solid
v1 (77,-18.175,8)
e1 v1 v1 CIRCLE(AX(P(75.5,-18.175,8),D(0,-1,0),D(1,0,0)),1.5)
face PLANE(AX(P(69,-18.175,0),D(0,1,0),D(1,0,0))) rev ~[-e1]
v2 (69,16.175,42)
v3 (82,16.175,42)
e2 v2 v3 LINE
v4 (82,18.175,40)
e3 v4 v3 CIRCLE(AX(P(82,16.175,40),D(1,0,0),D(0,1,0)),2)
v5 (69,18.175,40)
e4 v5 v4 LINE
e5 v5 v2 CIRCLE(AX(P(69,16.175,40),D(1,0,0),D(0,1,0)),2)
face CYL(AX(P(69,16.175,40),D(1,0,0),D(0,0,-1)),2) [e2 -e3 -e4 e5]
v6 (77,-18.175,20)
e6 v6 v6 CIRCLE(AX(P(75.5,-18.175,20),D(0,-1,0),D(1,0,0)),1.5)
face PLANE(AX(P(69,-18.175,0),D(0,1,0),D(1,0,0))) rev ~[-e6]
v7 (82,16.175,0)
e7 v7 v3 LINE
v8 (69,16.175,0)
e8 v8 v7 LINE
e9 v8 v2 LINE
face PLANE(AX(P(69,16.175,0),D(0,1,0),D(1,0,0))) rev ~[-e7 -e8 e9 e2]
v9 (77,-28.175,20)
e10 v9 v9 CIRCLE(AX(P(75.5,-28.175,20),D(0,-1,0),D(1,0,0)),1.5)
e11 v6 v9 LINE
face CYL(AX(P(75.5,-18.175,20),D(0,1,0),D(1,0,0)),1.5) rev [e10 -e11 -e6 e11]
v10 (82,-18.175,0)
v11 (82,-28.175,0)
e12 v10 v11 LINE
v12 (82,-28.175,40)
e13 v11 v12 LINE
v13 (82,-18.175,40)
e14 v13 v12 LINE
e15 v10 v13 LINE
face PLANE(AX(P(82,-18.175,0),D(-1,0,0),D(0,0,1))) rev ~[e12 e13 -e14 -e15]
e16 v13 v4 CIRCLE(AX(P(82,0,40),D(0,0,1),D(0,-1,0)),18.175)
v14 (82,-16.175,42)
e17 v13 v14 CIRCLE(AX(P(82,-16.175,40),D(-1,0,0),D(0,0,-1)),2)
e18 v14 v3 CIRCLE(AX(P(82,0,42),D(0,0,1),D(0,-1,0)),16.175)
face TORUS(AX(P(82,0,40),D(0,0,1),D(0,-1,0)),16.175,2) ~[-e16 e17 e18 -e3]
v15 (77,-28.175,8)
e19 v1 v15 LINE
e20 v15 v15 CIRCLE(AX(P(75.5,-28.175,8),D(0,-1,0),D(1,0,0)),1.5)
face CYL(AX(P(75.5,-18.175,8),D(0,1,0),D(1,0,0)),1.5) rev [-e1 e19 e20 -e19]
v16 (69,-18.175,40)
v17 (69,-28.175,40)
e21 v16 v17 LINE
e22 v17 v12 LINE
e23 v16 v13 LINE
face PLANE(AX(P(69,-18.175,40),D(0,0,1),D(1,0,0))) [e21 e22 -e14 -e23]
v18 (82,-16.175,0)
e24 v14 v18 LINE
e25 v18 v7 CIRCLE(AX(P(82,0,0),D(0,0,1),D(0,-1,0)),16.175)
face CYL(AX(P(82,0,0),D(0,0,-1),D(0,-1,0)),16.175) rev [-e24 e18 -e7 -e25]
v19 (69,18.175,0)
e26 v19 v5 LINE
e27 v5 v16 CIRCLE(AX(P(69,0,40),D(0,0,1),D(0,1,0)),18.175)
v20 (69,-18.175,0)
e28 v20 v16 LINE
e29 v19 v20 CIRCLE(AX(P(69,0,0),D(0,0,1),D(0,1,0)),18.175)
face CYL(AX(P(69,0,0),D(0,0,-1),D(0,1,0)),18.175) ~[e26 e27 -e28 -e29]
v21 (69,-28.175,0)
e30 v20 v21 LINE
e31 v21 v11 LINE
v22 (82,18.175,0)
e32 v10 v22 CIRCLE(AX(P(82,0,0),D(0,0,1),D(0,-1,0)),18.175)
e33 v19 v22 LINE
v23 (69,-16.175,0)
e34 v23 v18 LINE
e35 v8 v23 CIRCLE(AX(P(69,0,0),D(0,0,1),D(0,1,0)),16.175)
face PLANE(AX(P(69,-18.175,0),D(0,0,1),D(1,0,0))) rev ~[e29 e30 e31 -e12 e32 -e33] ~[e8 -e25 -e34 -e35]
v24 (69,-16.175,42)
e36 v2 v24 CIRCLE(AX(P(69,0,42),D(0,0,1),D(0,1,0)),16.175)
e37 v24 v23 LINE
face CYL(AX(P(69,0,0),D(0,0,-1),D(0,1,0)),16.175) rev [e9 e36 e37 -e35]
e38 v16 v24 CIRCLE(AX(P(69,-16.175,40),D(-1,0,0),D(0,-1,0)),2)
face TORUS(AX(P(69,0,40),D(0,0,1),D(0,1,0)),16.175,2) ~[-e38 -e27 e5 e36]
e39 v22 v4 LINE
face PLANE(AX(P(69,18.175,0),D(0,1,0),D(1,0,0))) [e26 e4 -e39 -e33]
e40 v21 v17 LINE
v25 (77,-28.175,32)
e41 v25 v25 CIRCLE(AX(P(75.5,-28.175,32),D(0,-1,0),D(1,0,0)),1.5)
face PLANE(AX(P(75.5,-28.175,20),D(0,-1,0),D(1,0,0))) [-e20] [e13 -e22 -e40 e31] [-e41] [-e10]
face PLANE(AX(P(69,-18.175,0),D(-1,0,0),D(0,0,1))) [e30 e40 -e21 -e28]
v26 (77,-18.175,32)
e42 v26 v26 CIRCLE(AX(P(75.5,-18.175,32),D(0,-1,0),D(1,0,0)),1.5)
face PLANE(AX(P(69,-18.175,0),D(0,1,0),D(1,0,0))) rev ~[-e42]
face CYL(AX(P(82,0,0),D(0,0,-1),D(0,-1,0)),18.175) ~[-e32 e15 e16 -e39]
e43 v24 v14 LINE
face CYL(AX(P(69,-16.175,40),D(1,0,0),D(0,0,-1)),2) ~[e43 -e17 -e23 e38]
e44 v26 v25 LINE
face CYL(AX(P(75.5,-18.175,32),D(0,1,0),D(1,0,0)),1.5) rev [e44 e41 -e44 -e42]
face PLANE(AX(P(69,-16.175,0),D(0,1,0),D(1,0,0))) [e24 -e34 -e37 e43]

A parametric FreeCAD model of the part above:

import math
import FreeCAD as App
import Part
import Sketcher
from FreeCAD import Vector


def faces_at(feature, points):
    """Names of the faces that lie closest to the given points."""
    faces = feature.Shape.Faces
    near = lambda p: min(range(len(faces)), key=lambda i: faces[i].distToShape(Part.Vertex(*p))[0])
    return sorted({f"Face{near(p) + 1}" for p in points})


def add_polygon(sketch, points):
    """Adds a closed chain of lines whose ends are joined by coincident constraints."""
    first, n = sketch.GeometryCount, len(points)
    for a, b in zip(points, points[1:] + points[:1]):
        sketch.addGeometry(Part.LineSegment(App.Vector(*a, 0), App.Vector(*b, 0)), False)
    for i in range(n):
        sketch.addConstraint(Sketcher.Constraint("Coincident", first + i, 2, first + (i + 1) % n, 1))

doc = App.newDocument("Part")
params = doc.addObject("Spreadsheet::Sheet", "Params")
for row, (alias, value) in enumerate([
    ("sketch1_width", "13 mm"),
    ("pad1_length", "40 mm"),
    ("thickness_wall", "2 mm"),
    ("sketch2_width", "13 mm"),
    ("pocket1_length", "5 mm"),
    ("sketch3_diameter", "3 mm"),
    ("sketch3_width", "13 mm"),
    ("sketch3_height", "40 mm"),
    ("pad2_length", "10 mm"),
], start=1):
    params.set(f"A{row}", alias)
    params.set(f"B{row}", "=" + value)
    params.setAlias(f"B{row}", alias)

body = doc.addObject("PartDesign::Body", "Body")

# Sketch on XY plane
sketch1 = body.newObject("Sketcher::SketchObject", "Sketch")
sketch1.AttachmentSupport = (doc.getObject("XY_Plane"), [""])
sketch1.MapMode = "FlatFace"
sketch1.addGeometry([
    Part.ArcOfCircle(Part.Circle(Vector(0, 0, 0), Vector(0, 0, 1), 16.175), math.radians(90), math.radians(270)),
    Part.LineSegment(Vector(0, -16.175, 0), Vector(13, -16.175, 0)),
    Part.ArcOfCircle(Part.Circle(Vector(13, 0, 0), Vector(0, 0, 1), 16.175), math.radians(-90), math.radians(90)),
    Part.LineSegment(Vector(13, 16.175, 0), Vector(0, 16.175, 0)),
], False)
sketch1.addConstraint([
    Sketcher.Constraint("Tangent", 0, 2, 1, 1),
    Sketcher.Constraint("Tangent", 1, 2, 2, 1),
    Sketcher.Constraint("Tangent", 2, 2, 3, 1),
    Sketcher.Constraint("Tangent", 3, 2, 0, 1),
    Sketcher.Constraint("Horizontal", 1),
    Sketcher.Constraint("Horizontal", 3),
    Sketcher.Constraint("Coincident", 0, 3, -1, 1),
    Sketcher.Constraint("DistanceX", 1, 1, 1, 2, 13.0),
    Sketcher.Constraint("Radius", 0, 16.175),
])
sketch1.setExpression("Constraints[7]", "Params.sketch1_width")
pad1 = body.newObject("PartDesign::Pad", "Pad")
pad1.Profile = sketch1
pad1.setExpression("Length", "Params.pad1_length")
doc.recompute()

thickness = body.newObject("PartDesign::Thickness", "Thickness")
thickness.Base = (pad1, faces_at(pad1, [(6.5, 0, 0)]))
thickness.setExpression("Value", "Params.thickness_wall")
thickness.Reversed = False
thickness.Join = "Arc"

# Sketch on XY plane
sketch2 = body.newObject("Sketcher::SketchObject", "Sketch001")
sketch2.AttachmentSupport = (doc.getObject("XY_Plane"), [""])
sketch2.MapMode = "FlatFace"
sketch2.AttachmentOffset = App.Placement(Vector(0, 0, 40), App.Rotation())
sketch2.addGeometry([
    Part.ArcOfCircle(Part.Circle(Vector(0, 0, 0), Vector(0, 0, 1), 16.175), math.radians(90), math.radians(270)),
    Part.LineSegment(Vector(0, 16.175, 0), Vector(13, 16.175, 0)),
    Part.ArcOfCircle(Part.Circle(Vector(13, 0, 0), Vector(0, 0, 1), 16.175), math.radians(-90), math.radians(90)),
    Part.LineSegment(Vector(13, -16.175, 0), Vector(0, -16.175, 0)),
], False)
sketch2.addConstraint([
    Sketcher.Constraint("Tangent", 0, 1, 1, 1),
    Sketcher.Constraint("Tangent", 1, 2, 2, 2),
    Sketcher.Constraint("Tangent", 2, 1, 3, 1),
    Sketcher.Constraint("Tangent", 3, 2, 0, 2),
    Sketcher.Constraint("Horizontal", 1),
    Sketcher.Constraint("Horizontal", 3),
    Sketcher.Constraint("Coincident", 0, 3, -1, 1),
    Sketcher.Constraint("DistanceX", 1, 1, 1, 2, 13.0),
    Sketcher.Constraint("Radius", 0, 16.175),
])
sketch2.setExpression("Constraints[7]", "Params.sketch2_width")
pocket1 = body.newObject("PartDesign::Pocket", "Pocket")
pocket1.Profile = sketch2
pocket1.setExpression("Length", "Params.pocket1_length")
pocket1.Reversed = True

# Sketch on XZ plane
sketch3 = body.newObject("Sketcher::SketchObject", "Sketch002")
sketch3.AttachmentSupport = (doc.getObject("XZ_Plane"), [""])
sketch3.MapMode = "FlatFace"
sketch3.AttachmentOffset = App.Placement(Vector(0, 0, 18.175), App.Rotation())
add_polygon(sketch3, [(0, 40), (0, 0), (13, 0), (13, 40)])  # lines 0-3
sketch3.addGeometry(Part.Circle(Vector(6.5, 8, 0), Vector(0, 0, 1), 1.5), False)  # 4
sketch3.addGeometry(Part.Circle(Vector(6.5, 20, 0), Vector(0, 0, 1), 1.5), False)  # 5
sketch3.addGeometry(Part.Circle(Vector(6.5, 32, 0), Vector(0, 0, 1), 1.5), False)  # 6
sketch3.addConstraint([
    Sketcher.Constraint("Vertical", 0),
    Sketcher.Constraint("Horizontal", 1),
    Sketcher.Constraint("Vertical", 2),
    Sketcher.Constraint("Horizontal", 3),
    Sketcher.Constraint("Coincident", 0, 2, -1, 1),
    Sketcher.Constraint("Equal", 4, 5),
    Sketcher.Constraint("Equal", 5, 6),
    Sketcher.Constraint("Vertical", 4, 3, 5, 3),
    Sketcher.Constraint("Vertical", 5, 3, 6, 3),
    Sketcher.Constraint("Diameter", 4, 3.0),
    Sketcher.Constraint("DistanceX", 1, 1, 1, 2, 13.0),
    Sketcher.Constraint("DistanceY", 0, 2, 0, 1, 40.0),
    Sketcher.Constraint("DistanceY", -1, 1, 4, 3, 8.0),
    Sketcher.Constraint("DistanceY", -1, 1, 5, 3, 20.0),
    Sketcher.Constraint("DistanceY", -1, 1, 6, 3, 32.0),
    Sketcher.Constraint("DistanceX", -1, 1, 4, 3, 6.5),
])
sketch3.setExpression("Constraints[13]", "Params.sketch3_diameter")
sketch3.setExpression("Constraints[14]", "Params.sketch3_width")
sketch3.setExpression("Constraints[15]", "Params.sketch3_height")
pad2 = body.newObject("PartDesign::Pad", "Pad001")
pad2.Profile = sketch3
pad2.setExpression("Length", "Params.pad2_length")
body2 = doc.addObject("PartDesign::Body", "Body001")
doc.recompute()

body.Placement = App.Placement(Vector(69, 0, 0), App.Rotation(Vector(0, 0, 1), 0))
boolean = body2.newObject("PartDesign::Boolean", "Boolean")
boolean.Type = "Fuse"
boolean.addObjects([body])

doc.recompute()
